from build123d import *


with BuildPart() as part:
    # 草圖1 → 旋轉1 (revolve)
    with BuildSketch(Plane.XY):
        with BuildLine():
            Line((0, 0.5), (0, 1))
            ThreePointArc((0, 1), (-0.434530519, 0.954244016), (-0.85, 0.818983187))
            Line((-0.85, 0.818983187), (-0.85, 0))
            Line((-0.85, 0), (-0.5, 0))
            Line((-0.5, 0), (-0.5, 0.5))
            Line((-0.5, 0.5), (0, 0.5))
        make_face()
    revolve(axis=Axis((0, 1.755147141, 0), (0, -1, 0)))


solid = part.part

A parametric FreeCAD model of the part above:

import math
import FreeCAD as App
import Part
import Sketcher
from FreeCAD import Vector
Q = App.Units.Quantity

doc = App.newDocument("Part")
params = doc.addObject("Spreadsheet::Sheet", "Params")
for row, (alias, value) in enumerate([
    ("sketch1_width", "0.5 mm"),
    ("sketch1_width2", "0.35 mm"),
    ("revolution_angle", "360 deg"),
], start=1):
    params.set(f"A{row}", alias)
    params.set(f"B{row}", "=" + value)
    params.setAlias(f"B{row}", alias)

body = doc.addObject("PartDesign::Body", "Body")

sketch1 = body.newObject("Sketcher::SketchObject", "Sketch")
sketch1.AttachmentSupport = (doc.getObject("XY_Plane"), [""])
sketch1.MapMode = "FlatFace"
sketch1.addGeometry([
    Part.LineSegment(Vector(0, 0.5, 0), Vector(0, 1, 0)),
    Part.ArcOfCircle(Part.Circle(Vector(0, -1.086179, 0), Vector(0, 0, 1), 2.086179), math.radians(90), math.radians(114.044333)),
    Part.LineSegment(Vector(-0.85, 0.818983, 0), Vector(-0.85, 0, 0)),
    Part.LineSegment(Vector(-0.85, 0, 0), Vector(-0.5, 0, 0)),
    Part.LineSegment(Vector(-0.5, 0, 0), Vector(-0.5, 0.5, 0)),
    Part.LineSegment(Vector(-0.5, 0.5, 0), Vector(0, 0.5, 0)),
], False)
sketch1.addConstraint([
    Sketcher.Constraint("Coincident", 0, 2, 1, 1),
    Sketcher.Constraint("Coincident", 1, 2, 2, 1),
    Sketcher.Constraint("Coincident", 2, 2, 3, 1),
    Sketcher.Constraint("Coincident", 3, 2, 4, 1),
    Sketcher.Constraint("Coincident", 4, 2, 5, 1),
    Sketcher.Constraint("Coincident", 5, 2, 0, 1),
    Sketcher.Constraint("Vertical", 0),
    Sketcher.Constraint("Vertical", 2),
    Sketcher.Constraint("Horizontal", 3),
    Sketcher.Constraint("Vertical", 4),
    Sketcher.Constraint("Horizontal", 5),
    Sketcher.Constraint("PointOnObject", 1, 3, -2),
    Sketcher.Constraint("PointOnObject", 0, 2, -2),
    Sketcher.Constraint("PointOnObject", 2, 2, -1),
    Sketcher.Constraint("Equal", 5, 0),
    Sketcher.Constraint("Equal", 0, 4),
    Sketcher.Constraint("DistanceX", 5, 1, 5, 2, Q("0.5 mm")),
    Sketcher.Constraint("DistanceX", 3, 1, 3, 2, Q("0.35 mm")),
    Sketcher.Constraint("Radius", 1, Q("2.086179 mm")),
])
sketch1.setExpression("Constraints[16]", "Params.sketch1_width")
sketch1.setExpression("Constraints[17]", "Params.sketch1_width2")
revolution = body.newObject("PartDesign::Revolution", "Revolution")
revolution.Profile = sketch1
revolution.ReferenceAxis = (sketch1, ["V_Axis"])
revolution.setExpression("Angle", "Params.revolution_angle")

doc.recompute()
